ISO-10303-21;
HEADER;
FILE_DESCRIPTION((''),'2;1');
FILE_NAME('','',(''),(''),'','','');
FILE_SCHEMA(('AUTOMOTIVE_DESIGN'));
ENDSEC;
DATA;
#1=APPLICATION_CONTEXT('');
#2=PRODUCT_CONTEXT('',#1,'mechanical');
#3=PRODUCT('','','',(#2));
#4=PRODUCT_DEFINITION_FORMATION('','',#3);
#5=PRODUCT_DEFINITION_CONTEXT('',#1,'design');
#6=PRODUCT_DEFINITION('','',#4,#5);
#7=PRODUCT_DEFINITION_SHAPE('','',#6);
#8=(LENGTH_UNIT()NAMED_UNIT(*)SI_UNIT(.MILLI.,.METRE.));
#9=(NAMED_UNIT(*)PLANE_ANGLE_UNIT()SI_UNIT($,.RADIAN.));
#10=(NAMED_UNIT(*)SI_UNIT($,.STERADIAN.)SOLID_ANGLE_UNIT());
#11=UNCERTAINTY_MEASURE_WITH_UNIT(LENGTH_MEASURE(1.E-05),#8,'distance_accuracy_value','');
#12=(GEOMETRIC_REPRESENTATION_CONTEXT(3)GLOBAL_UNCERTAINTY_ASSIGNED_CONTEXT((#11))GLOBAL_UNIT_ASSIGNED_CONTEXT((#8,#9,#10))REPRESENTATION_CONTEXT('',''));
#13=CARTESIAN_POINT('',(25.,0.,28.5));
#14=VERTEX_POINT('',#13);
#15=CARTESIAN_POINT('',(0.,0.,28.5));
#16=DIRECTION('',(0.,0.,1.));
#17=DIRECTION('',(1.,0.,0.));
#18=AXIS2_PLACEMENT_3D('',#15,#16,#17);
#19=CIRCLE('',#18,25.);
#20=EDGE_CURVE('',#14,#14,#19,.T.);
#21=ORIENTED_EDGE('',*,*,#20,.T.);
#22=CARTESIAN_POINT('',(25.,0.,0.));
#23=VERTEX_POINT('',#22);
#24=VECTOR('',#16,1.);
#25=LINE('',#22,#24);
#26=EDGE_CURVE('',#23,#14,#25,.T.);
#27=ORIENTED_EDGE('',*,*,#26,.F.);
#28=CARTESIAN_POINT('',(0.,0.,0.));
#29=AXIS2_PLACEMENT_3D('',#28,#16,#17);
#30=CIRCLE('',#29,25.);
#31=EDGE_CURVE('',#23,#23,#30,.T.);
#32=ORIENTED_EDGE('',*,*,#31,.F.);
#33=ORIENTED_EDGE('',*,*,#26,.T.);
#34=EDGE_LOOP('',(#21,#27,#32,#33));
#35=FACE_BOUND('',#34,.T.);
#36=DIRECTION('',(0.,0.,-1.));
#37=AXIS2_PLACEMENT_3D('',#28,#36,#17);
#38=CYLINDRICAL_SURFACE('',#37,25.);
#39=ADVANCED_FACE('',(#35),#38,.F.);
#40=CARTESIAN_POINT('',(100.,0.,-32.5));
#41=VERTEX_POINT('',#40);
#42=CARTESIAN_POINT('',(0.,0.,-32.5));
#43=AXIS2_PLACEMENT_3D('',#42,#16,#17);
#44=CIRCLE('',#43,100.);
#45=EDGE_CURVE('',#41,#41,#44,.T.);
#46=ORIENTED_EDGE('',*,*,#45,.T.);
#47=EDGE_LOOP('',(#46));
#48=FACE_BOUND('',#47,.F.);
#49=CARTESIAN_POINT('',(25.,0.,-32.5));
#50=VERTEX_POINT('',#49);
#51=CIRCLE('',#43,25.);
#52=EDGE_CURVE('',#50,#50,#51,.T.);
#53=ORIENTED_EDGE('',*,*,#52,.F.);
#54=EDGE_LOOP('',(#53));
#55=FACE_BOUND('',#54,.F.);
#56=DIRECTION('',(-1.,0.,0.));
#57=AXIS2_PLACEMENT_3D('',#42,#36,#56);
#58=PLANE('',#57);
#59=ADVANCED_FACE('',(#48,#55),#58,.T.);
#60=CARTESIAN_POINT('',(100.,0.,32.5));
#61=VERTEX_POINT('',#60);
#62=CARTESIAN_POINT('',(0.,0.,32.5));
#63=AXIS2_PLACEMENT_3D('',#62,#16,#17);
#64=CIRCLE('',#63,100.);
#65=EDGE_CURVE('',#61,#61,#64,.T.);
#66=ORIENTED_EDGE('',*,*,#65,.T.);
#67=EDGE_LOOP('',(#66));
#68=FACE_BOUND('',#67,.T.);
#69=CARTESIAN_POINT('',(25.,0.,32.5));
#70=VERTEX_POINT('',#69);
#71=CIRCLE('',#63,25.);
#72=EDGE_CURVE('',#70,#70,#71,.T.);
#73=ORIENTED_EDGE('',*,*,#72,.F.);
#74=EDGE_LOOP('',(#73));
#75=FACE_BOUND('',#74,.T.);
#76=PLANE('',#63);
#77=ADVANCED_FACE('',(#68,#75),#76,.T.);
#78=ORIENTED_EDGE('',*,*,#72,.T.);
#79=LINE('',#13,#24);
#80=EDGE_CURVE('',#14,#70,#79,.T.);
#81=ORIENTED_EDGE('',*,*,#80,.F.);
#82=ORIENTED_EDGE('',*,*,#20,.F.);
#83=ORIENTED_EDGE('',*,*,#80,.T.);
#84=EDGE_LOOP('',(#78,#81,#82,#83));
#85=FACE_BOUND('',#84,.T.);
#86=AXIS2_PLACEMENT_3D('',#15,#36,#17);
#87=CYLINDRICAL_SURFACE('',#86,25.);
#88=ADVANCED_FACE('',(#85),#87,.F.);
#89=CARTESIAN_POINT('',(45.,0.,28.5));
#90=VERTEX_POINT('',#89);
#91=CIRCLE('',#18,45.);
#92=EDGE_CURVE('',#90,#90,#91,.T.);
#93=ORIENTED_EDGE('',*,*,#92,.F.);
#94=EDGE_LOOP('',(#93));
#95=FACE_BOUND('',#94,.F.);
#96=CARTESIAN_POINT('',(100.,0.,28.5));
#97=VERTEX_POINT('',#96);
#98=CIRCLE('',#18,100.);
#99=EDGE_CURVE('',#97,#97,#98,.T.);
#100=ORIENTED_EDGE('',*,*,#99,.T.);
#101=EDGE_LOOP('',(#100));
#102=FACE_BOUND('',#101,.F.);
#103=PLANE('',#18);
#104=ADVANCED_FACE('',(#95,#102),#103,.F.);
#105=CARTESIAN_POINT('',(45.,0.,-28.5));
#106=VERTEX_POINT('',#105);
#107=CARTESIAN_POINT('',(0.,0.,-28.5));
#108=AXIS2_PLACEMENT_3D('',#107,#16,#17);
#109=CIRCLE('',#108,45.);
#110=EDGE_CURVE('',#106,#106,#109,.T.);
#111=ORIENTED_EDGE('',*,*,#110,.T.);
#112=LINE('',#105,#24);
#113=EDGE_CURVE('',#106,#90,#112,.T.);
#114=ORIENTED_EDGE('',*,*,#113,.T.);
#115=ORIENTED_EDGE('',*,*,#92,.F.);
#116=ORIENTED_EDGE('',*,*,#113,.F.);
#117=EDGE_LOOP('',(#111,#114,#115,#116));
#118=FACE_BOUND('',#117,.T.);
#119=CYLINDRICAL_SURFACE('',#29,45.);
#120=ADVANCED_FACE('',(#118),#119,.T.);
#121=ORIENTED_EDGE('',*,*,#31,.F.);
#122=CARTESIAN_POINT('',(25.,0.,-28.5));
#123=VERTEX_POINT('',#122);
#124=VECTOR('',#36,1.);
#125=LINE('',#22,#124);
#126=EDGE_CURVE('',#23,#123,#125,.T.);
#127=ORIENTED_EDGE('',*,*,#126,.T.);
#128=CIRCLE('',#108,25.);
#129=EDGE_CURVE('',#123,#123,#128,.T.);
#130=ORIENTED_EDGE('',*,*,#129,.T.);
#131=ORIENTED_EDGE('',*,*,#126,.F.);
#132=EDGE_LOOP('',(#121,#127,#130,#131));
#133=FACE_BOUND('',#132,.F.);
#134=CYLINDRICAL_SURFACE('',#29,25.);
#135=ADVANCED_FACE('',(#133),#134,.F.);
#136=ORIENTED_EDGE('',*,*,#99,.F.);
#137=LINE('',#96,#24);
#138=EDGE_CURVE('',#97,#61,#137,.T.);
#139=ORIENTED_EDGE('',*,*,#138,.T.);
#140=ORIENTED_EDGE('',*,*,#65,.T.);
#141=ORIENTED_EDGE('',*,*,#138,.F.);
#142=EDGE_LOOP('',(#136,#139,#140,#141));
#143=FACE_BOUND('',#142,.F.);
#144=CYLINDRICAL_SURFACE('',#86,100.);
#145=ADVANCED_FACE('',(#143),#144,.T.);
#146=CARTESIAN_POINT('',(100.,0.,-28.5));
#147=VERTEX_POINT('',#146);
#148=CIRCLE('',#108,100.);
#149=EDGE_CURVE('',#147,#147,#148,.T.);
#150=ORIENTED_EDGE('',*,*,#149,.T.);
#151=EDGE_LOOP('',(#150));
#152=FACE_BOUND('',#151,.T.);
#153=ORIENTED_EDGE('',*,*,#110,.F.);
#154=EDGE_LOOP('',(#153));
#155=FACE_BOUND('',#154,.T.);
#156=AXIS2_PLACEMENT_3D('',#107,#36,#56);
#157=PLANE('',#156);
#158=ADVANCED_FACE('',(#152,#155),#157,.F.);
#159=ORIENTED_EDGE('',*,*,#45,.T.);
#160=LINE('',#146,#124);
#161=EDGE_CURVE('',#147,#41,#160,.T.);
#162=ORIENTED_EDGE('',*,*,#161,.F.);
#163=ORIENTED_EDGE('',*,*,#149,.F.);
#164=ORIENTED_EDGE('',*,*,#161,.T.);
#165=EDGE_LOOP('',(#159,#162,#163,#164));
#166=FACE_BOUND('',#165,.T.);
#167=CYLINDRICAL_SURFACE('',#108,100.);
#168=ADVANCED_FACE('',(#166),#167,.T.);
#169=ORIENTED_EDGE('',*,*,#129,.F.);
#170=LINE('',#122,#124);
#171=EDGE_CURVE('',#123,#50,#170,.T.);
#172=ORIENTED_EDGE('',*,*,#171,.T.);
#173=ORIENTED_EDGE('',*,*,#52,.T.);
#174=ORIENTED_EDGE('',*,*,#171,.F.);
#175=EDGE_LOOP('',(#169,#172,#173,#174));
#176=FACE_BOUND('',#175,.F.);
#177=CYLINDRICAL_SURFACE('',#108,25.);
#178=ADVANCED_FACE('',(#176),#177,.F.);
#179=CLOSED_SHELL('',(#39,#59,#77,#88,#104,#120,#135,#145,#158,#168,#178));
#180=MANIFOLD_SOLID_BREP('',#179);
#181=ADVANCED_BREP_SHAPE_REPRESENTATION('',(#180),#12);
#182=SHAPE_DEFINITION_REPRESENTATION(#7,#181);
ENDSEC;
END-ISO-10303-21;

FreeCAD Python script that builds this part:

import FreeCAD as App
import Part
import Sketcher
Q = App.Units.Quantity

doc = App.newDocument("Part")
body = doc.addObject("PartDesign::Body", "Body")

# Sketch on XY plane
sketch1 = doc.addObject("Sketcher::SketchObject", "Sketch")
body.addObject(sketch1)
sketch1.AttachmentSupport = (doc.XY_Plane, [""])
sketch1.MapMode = "FlatFace"
sketch1.addGeometry([
    Part.Circle(App.Vector(0, 0, 0), App.Vector(0, 0, 1), 45),
    Part.Circle(App.Vector(0, 0, 0), App.Vector(0, 0, 1), 25),
], False)
sketch1.addConstraint([
    Sketcher.Constraint("Coincident", 0, 3, -1, 1),
    Sketcher.Constraint("Coincident", 1, 3, -1, 1),
    Sketcher.Constraint("Diameter", 0, Q("90 mm")),
    Sketcher.Constraint("Diameter", 1, Q("50 mm")),
])
pad1 = doc.addObject("PartDesign::Pad", "Pad")
body.addObject(pad1)
pad1.Profile = sketch1
pad1.Length = 57
pad1.Midplane = True

# Sketch on XY plane
sketch2 = doc.addObject("Sketcher::SketchObject", "Sketch001")
body.addObject(sketch2)
sketch2.AttachmentSupport = (doc.XY_Plane, [""])
sketch2.MapMode = "FlatFace"
sketch2.AttachmentOffset = App.Placement(App.Vector(0, 0, 28.5), App.Rotation())
sketch2.addGeometry([
    Part.Circle(App.Vector(0, 0, 0), App.Vector(0, 0, 1), 100),
    Part.Circle(App.Vector(0, 0, 0), App.Vector(0, 0, 1), 25),
], False)
sketch2.addConstraint([
    Sketcher.Constraint("Coincident", 0, 3, -1, 1),
    Sketcher.Constraint("Coincident", 1, 3, -1, 1),
    Sketcher.Constraint("Diameter", 0, Q("200 mm")),
    Sketcher.Constraint("Diameter", 1, Q("50 mm")),
])
pad2 = doc.addObject("PartDesign::Pad", "Pad001")
body.addObject(pad2)
pad2.Profile = sketch2
pad2.Length = 4
doc.recompute()

mirrored = doc.addObject("PartDesign::Mirrored", "Mirrored")
body.addObject(mirrored)
mirrored.Originals = [pad2]
mirrored.MirrorPlane = (doc.XY_Plane, [""])
body.Tip = mirrored

doc.recompute()
